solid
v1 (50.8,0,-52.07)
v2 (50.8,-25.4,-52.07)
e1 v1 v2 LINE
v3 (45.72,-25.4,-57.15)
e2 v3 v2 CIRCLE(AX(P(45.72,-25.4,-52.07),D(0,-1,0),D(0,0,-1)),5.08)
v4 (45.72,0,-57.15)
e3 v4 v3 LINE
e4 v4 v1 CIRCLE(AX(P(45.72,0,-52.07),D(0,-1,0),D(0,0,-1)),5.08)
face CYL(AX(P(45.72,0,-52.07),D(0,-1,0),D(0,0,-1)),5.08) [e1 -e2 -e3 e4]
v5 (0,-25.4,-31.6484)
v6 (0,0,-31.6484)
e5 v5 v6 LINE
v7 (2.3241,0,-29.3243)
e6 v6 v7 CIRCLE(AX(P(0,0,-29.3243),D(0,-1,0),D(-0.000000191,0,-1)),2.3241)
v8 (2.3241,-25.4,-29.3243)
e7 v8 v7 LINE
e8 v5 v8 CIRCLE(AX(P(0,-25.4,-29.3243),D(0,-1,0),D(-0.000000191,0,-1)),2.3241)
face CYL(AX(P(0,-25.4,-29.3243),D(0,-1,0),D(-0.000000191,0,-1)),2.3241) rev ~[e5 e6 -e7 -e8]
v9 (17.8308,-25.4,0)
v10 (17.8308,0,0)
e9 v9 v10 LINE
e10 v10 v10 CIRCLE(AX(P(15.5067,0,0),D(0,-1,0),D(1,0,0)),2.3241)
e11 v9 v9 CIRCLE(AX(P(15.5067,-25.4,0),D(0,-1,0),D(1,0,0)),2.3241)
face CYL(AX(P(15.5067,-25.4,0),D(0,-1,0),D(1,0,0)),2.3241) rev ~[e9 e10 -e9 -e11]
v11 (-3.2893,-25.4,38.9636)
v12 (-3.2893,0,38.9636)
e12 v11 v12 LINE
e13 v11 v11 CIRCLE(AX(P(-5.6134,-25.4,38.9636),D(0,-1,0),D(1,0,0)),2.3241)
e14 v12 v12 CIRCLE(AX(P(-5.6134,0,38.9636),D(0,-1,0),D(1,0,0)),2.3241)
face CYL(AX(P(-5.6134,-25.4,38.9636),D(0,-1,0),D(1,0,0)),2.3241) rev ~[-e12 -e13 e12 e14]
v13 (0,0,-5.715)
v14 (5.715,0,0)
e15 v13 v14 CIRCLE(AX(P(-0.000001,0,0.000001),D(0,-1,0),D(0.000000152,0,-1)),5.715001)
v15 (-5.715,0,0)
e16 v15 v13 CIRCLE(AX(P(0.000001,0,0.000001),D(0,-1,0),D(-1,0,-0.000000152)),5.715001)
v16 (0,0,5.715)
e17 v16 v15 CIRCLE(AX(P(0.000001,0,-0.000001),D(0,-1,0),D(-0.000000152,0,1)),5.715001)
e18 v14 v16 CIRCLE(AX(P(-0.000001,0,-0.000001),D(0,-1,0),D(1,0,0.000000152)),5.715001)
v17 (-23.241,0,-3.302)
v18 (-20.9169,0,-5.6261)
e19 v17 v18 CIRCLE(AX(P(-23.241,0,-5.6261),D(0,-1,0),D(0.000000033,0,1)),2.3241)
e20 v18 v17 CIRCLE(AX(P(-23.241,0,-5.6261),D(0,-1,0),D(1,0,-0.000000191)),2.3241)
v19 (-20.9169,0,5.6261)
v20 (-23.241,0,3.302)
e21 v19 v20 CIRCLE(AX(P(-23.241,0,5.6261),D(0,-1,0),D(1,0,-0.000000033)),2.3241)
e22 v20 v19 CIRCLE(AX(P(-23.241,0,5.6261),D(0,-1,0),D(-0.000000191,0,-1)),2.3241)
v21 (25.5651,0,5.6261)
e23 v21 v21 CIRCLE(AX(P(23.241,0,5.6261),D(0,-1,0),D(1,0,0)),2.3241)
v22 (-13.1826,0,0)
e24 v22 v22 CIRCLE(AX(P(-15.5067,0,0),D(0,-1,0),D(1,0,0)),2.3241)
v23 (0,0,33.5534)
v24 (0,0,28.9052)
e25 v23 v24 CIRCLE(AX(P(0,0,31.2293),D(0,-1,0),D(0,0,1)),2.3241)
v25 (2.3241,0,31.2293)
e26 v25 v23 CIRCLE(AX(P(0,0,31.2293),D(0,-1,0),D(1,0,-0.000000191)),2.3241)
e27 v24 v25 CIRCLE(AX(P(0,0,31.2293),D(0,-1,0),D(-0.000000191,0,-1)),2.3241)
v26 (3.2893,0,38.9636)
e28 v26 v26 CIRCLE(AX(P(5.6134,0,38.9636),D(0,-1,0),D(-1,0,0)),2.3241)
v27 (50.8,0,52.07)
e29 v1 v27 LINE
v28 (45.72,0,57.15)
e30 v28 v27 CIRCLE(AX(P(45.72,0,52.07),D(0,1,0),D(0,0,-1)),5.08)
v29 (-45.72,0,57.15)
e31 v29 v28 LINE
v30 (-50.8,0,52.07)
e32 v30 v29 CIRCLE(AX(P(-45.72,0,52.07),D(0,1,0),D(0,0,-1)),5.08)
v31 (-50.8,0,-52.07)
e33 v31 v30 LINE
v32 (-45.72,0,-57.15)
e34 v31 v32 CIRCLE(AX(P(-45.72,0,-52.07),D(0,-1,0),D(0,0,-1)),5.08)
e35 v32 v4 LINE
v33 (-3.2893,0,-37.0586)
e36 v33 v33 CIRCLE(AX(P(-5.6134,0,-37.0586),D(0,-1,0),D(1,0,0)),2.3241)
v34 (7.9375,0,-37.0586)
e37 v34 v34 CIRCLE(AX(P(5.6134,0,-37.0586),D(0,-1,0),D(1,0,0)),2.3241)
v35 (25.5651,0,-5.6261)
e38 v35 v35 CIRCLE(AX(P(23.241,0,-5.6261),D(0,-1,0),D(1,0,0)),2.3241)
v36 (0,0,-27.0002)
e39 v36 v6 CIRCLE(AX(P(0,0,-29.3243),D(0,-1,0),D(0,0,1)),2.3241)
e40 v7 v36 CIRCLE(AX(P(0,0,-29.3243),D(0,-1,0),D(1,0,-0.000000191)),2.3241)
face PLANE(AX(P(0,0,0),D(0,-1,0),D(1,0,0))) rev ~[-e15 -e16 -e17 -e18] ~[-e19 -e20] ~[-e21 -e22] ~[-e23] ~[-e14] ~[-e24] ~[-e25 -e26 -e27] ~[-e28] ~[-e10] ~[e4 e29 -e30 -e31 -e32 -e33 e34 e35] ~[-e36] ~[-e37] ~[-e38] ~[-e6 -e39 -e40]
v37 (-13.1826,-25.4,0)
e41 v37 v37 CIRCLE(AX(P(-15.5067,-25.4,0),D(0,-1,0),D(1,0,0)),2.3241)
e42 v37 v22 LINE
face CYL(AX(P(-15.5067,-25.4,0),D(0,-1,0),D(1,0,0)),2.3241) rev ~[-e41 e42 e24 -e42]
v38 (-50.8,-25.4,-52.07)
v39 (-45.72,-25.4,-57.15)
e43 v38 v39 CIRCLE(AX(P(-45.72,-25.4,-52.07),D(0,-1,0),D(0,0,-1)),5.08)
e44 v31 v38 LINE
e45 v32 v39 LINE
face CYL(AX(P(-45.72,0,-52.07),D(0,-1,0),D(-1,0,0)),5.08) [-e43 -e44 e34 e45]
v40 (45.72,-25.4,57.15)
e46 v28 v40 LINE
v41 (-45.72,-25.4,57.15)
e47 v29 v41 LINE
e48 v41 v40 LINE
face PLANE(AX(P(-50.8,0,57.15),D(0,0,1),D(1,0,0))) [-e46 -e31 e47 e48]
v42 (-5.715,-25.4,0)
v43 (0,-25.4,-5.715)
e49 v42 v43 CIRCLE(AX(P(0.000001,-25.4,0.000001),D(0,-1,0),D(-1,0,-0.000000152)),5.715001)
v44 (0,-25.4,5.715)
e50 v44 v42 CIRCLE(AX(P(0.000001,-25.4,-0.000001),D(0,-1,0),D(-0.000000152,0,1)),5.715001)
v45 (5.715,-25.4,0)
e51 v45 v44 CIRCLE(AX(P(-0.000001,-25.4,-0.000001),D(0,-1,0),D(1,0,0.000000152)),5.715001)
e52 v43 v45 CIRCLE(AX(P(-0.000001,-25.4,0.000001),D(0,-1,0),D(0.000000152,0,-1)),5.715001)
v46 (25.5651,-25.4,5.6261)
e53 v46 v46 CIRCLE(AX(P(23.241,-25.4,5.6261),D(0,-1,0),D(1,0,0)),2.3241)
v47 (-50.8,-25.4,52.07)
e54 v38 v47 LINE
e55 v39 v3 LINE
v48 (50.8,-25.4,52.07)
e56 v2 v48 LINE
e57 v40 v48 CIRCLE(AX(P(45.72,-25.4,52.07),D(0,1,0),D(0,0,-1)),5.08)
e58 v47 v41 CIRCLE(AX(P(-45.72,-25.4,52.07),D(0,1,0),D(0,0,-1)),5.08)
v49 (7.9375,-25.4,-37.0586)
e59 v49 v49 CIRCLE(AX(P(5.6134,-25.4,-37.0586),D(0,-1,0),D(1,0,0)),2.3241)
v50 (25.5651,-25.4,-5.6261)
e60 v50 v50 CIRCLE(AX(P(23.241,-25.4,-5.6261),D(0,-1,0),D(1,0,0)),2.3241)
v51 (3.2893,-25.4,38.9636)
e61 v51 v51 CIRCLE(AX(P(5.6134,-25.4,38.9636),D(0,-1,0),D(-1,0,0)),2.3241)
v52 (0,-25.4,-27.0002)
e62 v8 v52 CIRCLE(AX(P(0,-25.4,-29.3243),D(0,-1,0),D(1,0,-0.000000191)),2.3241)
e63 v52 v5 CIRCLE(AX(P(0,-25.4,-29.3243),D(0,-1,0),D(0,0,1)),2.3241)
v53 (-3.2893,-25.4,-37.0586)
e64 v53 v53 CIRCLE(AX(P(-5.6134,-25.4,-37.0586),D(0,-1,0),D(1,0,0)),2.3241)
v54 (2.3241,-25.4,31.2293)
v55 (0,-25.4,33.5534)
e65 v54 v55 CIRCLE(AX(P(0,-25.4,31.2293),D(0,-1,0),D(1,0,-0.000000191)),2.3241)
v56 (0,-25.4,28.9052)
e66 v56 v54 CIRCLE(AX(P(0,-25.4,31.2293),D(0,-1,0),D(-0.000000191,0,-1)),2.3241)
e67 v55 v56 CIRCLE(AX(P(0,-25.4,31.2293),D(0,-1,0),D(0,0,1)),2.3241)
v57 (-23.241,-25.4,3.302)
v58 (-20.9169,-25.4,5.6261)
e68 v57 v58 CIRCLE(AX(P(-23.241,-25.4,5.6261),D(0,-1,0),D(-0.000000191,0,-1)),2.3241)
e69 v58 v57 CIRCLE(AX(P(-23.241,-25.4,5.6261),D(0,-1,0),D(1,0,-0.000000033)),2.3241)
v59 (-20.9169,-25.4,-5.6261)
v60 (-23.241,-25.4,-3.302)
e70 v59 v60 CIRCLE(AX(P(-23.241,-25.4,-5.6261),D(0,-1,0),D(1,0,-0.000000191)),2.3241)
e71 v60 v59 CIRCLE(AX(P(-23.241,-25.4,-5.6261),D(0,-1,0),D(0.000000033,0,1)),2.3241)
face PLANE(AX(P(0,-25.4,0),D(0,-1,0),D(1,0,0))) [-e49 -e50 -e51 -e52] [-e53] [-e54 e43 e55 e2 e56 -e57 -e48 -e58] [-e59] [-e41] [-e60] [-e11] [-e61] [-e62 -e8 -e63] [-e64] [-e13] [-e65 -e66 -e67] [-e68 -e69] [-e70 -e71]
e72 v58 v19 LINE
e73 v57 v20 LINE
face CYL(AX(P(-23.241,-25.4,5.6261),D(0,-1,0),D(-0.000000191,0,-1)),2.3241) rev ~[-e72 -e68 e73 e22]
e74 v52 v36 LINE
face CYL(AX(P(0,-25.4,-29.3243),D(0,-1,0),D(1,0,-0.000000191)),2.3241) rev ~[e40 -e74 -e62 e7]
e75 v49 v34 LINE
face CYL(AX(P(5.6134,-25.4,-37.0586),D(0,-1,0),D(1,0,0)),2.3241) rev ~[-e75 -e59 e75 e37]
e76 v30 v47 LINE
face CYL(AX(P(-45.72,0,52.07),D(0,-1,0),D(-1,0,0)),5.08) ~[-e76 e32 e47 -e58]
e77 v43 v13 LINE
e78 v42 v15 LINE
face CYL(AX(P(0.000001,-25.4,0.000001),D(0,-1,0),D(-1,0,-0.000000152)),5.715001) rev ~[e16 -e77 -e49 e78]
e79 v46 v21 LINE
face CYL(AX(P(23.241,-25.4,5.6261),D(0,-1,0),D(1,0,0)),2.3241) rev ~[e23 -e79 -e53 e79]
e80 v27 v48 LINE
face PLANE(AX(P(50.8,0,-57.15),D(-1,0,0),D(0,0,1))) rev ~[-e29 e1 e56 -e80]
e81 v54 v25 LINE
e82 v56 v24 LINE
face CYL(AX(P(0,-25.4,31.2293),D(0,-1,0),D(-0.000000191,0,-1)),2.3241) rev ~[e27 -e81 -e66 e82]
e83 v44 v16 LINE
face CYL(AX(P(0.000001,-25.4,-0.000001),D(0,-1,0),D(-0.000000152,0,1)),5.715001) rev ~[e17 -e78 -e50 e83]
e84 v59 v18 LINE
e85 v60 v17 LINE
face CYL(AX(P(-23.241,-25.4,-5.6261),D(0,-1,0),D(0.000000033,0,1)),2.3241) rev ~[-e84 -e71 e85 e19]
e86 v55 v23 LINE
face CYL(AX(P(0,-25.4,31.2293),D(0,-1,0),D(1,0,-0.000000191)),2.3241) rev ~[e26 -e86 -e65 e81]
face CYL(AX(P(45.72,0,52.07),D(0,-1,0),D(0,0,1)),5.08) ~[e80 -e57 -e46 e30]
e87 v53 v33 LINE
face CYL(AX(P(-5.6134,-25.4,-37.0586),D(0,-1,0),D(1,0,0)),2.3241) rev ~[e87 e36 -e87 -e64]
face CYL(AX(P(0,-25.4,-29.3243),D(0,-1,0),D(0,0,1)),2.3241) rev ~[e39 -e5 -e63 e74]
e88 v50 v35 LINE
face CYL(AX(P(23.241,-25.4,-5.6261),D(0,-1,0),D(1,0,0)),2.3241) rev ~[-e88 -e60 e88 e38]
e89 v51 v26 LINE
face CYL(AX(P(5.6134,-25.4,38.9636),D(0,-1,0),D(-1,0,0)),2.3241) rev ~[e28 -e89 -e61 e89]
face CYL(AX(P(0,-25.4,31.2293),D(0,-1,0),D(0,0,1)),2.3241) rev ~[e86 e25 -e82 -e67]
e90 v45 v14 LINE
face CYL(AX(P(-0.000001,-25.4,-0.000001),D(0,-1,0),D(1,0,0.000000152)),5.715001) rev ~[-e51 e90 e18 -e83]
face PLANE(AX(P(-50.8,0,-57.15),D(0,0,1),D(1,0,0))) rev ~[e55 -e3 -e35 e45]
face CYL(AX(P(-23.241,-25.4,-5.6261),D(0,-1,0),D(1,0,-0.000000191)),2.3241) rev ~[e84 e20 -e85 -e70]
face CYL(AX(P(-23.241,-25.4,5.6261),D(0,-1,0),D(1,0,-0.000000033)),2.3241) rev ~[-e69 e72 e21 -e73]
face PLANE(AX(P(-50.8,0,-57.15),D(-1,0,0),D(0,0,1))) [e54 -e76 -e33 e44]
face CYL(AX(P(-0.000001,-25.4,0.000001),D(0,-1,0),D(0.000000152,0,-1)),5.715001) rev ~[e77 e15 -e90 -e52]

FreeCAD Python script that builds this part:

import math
import FreeCAD as App
import Part
import Sketcher

V = App.Vector
Q = App.Units.Quantity


def edges_at(feature, points):
    """Names of the edges that pass closest to the given points."""
    edges = feature.Shape.Edges
    near = lambda p: min(range(len(edges)), key=lambda i: edges[i].distToShape(Part.Vertex(*p))[0])
    return sorted({f"Edge{near(p) + 1}" for p in points})

doc = App.newDocument("Part")
params = doc.addObject("Spreadsheet::Sheet", "Params")
for row, (alias, value) in enumerate([
    ("sketch1_width", "4 in"),
    ("sketch1_height", "4.5 in"),
    ("pad1_length", "1 in"),
    ("sketch2_diameter", "0.183 in"),
    ("sketch2_radius", "0.225 in"),
    ("fillet_radius", "0.2 in"),
], start=1):
    params.set(f"A{row}", alias)
    params.set(f"B{row}", "=" + value)
    params.setAlias(f"B{row}", alias)

body = doc.addObject("PartDesign::Body", "Body")

# Sketch on XZ plane
sketch1 = body.newObject("Sketcher::SketchObject", "Sketch")
sketch1.AttachmentSupport = (doc.getObject("XZ_Plane"), [""])
sketch1.MapMode = "FlatFace"
sketch1.addGeometry(Part.LineSegment(V(-51, 57, 0), V(-51, -57, 0)), False)
sketch1.addGeometry(Part.LineSegment(V(-51, -57, 0), V(51, -57, 0)), False)
sketch1.addGeometry(Part.LineSegment(V(51, -57, 0), V(51, 57, 0)), False)
sketch1.addGeometry(Part.LineSegment(V(51, 57, 0), V(-51, 57, 0)), False)
sketch1.addConstraint(Sketcher.Constraint("Coincident", 0, 2, 1, 1))
sketch1.addConstraint(Sketcher.Constraint("Coincident", 1, 2, 2, 1))
sketch1.addConstraint(Sketcher.Constraint("Coincident", 2, 2, 3, 1))
sketch1.addConstraint(Sketcher.Constraint("Coincident", 3, 2, 0, 1))
sketch1.addConstraint(Sketcher.Constraint("Vertical", 0))
sketch1.addConstraint(Sketcher.Constraint("Horizontal", 1))
sketch1.addConstraint(Sketcher.Constraint("Vertical", 2))
sketch1.addConstraint(Sketcher.Constraint("Horizontal", 3))
sketch1.addConstraint(Sketcher.Constraint("Symmetric", 0, 2, 2, 2, -1, 1))
sketch1.addConstraint(Sketcher.Constraint("DistanceX", 1, 1, 1, 2, Q("4 in")))
sketch1.addConstraint(Sketcher.Constraint("DistanceY", 0, 2, 0, 1, Q("4.5 in")))
sketch1.setExpression("Constraints[9]", "Params.sketch1_width")
sketch1.setExpression("Constraints[10]", "Params.sketch1_height")
pad1 = body.newObject("PartDesign::Pad", "Pad")
pad1.Profile = sketch1
pad1.setExpression("Length", "Params.pad1_length")

# Sketch on XZ plane
sketch2 = body.newObject("Sketcher::SketchObject", "Sketch001")
sketch2.AttachmentSupport = (doc.getObject("XZ_Plane"), [""])
sketch2.MapMode = "FlatFace"
sketch2.AttachmentOffset = App.Placement(V(0, 0, 1 * 25.4), App.Rotation())
sketch2.addGeometry(Part.ArcOfCircle(Part.Circle(V(0, 0, 0), V(0, 0, 1), 5.7), math.radians(-90), math.radians(0)), False)
sketch2.addGeometry(Part.ArcOfCircle(Part.Circle(V(0, 0, 0), V(0, 0, 1), 5.7), math.radians(0), math.radians(90)), False)
sketch2.addGeometry(Part.ArcOfCircle(Part.Circle(V(0, 0, 0), V(0, 0, 1), 5.7), math.radians(90), math.radians(180)), False)
sketch2.addGeometry(Part.ArcOfCircle(Part.Circle(V(0, 0, 0), V(0, 0, 1), 5.7), math.radians(-180), math.radians(-90)), False)
sketch2.addGeometry(Part.ArcOfCircle(Part.Circle(V(0, -29.3, 0), V(0, 0, 1), 2.3), math.radians(0), math.radians(90)), False)
sketch2.addGeometry(Part.ArcOfCircle(Part.Circle(V(0, -29.3, 0), V(0, 0, 1), 2.3), math.radians(90), math.radians(270)), False)
sketch2.addGeometry(Part.ArcOfCircle(Part.Circle(V(0, -29.3, 0), V(0, 0, 1), 2.3), math.radians(-90), math.radians(0)), False)
sketch2.addGeometry(Part.ArcOfCircle(Part.Circle(V(-23.2, -5.6, 0), V(0, 0, 1), 2.3), math.radians(0), math.radians(90)), False)
sketch2.addGeometry(Part.ArcOfCircle(Part.Circle(V(-23.2, -5.6, 0), V(0, 0, 1), 2.3), math.radians(90), math.radians(360)), False)
sketch2.addGeometry(Part.ArcOfCircle(Part.Circle(V(-23.2, 5.6, 0), V(0, 0, 1), 2.3), math.radians(0), math.radians(270)), False)
sketch2.addGeometry(Part.ArcOfCircle(Part.Circle(V(-23.2, 5.6, 0), V(0, 0, 1), 2.3), math.radians(-90), math.radians(0)), False)
sketch2.addGeometry(Part.Circle(V(-15.5, 0, 0), V(0, 0, 1), 2.3), False)
sketch2.addGeometry(Part.Circle(V(-5.6, 39, 0), V(0, 0, 1), 2.3), False)
sketch2.addGeometry(Part.Circle(V(5.6, 39, 0), V(0, 0, 1), 2.3), False)
sketch2.addGeometry(Part.ArcOfCircle(Part.Circle(V(0, 31.2, 0), V(0, 0, 1), 2.3), math.radians(90), math.radians(270)), False)
sketch2.addGeometry(Part.ArcOfCircle(Part.Circle(V(0, 31.2, 0), V(0, 0, 1), 2.3), math.radians(-90), math.radians(0)), False)
sketch2.addGeometry(Part.ArcOfCircle(Part.Circle(V(0, 31.2, 0), V(0, 0, 1), 2.3), math.radians(0), math.radians(90)), False)
sketch2.addGeometry(Part.Circle(V(-5.6, -37.1, 0), V(0, 0, 1), 2.3), False)
sketch2.addGeometry(Part.Circle(V(5.6, -37.1, 0), V(0, 0, 1), 2.3), False)
sketch2.addGeometry(Part.Circle(V(15.5, 0, 0), V(0, 0, 1), 2.3), False)
sketch2.addGeometry(Part.Circle(V(23.2, -5.6, 0), V(0, 0, 1), 2.3), False)
sketch2.addGeometry(Part.Circle(V(23.2, 5.6, 0), V(0, 0, 1), 2.3), False)
sketch2.addConstraint(Sketcher.Constraint("Tangent", 0, 2, 1, 1))
sketch2.addConstraint(Sketcher.Constraint("Tangent", 1, 2, 2, 1))
sketch2.addConstraint(Sketcher.Constraint("Tangent", 2, 2, 3, 1))
sketch2.addConstraint(Sketcher.Constraint("Tangent", 3, 2, 0, 1))
sketch2.addConstraint(Sketcher.Constraint("Tangent", 4, 2, 5, 1))
sketch2.addConstraint(Sketcher.Constraint("Tangent", 5, 2, 6, 1))
sketch2.addConstraint(Sketcher.Constraint("Tangent", 6, 2, 4, 1))
sketch2.addConstraint(Sketcher.Constraint("Tangent", 7, 1, 8, 2))
sketch2.addConstraint(Sketcher.Constraint("Coincident", 8, 1, 7, 2))
sketch2.addConstraint(Sketcher.Constraint("Tangent", 9, 1, 10, 2))
sketch2.addConstraint(Sketcher.Constraint("Coincident", 10, 1, 9, 2))
sketch2.addConstraint(Sketcher.Constraint("Tangent", 14, 2, 15, 1))
sketch2.addConstraint(Sketcher.Constraint("Tangent", 15, 2, 16, 1))
sketch2.addConstraint(Sketcher.Constraint("Tangent", 16, 2, 14, 1))
sketch2.addConstraint(Sketcher.Constraint("Coincident", 0, 3, -1, 1))
sketch2.addConstraint(Sketcher.Constraint("Equal", 0, 1))
sketch2.addConstraint(Sketcher.Constraint("Equal", 6, 7))
sketch2.addConstraint(Sketcher.Constraint("Equal", 8, 9))
sketch2.addConstraint(Sketcher.Constraint("Equal", 10, 11))
sketch2.addConstraint(Sketcher.Constraint("Equal", 11, 12))
sketch2.addConstraint(Sketcher.Constraint("Equal", 12, 13))
sketch2.addConstraint(Sketcher.Constraint("Equal", 13, 14))
sketch2.addConstraint(Sketcher.Constraint("Equal", 16, 17))
sketch2.addConstraint(Sketcher.Constraint("Equal", 17, 18))
sketch2.addConstraint(Sketcher.Constraint("Equal", 18, 19))
sketch2.addConstraint(Sketcher.Constraint("Equal", 19, 20))
sketch2.addConstraint(Sketcher.Constraint("Equal", 20, 21))
sketch2.addConstraint(Sketcher.Constraint("Symmetric", 11, 3, 19, 3, -1, 1))
sketch2.addConstraint(Sketcher.Constraint("Symmetric", 9, 3, 20, 3, -1, 1))
sketch2.addConstraint(Sketcher.Constraint("Symmetric", 7, 3, 21, 3, -1, 1))
sketch2.addConstraint(Sketcher.Constraint("Symmetric", 12, 3, 13, 3, -2))
sketch2.addConstraint(Sketcher.Constraint("Symmetric", 17, 3, 18, 3, -2))
sketch2.addConstraint(Sketcher.Constraint("Symmetric", 7, 3, 20, 3, -2))
sketch2.addConstraint(Sketcher.Constraint("PointOnObject", 4, 3, -2))
sketch2.addConstraint(Sketcher.Constraint("PointOnObject", 11, 3, -1))
sketch2.addConstraint(Sketcher.Constraint("PointOnObject", 14, 3, -2))
sketch2.addConstraint(Sketcher.Constraint("PointOnObject", 0, 2, -1))
sketch2.addConstraint(Sketcher.Constraint("PointOnObject", 1, 2, -2))
sketch2.addConstraint(Sketcher.Constraint("PointOnObject", 2, 2, -1))
sketch2.addConstraint(Sketcher.Constraint("PointOnObject", 3, 2, -2))
sketch2.addConstraint(Sketcher.Constraint("PointOnObject", 4, 2, -2))
sketch2.addConstraint(Sketcher.Constraint("PointOnObject", 5, 2, -2))
sketch2.addConstraint(Sketcher.Constraint("PointOnObject", 14, 2, -2))
sketch2.addConstraint(Sketcher.Constraint("PointOnObject", 16, 2, -2))
sketch2.addConstraint(Sketcher.Constraint("Horizontal", 5, 3, 6, 2))
sketch2.addConstraint(Sketcher.Constraint("Horizontal", 20, 3, 7, 1))
sketch2.addConstraint(Sketcher.Constraint("Horizontal", 21, 3, 9, 1))
sketch2.addConstraint(Sketcher.Constraint("Horizontal", 16, 3, 15, 2))
sketch2.addConstraint(Sketcher.Constraint("Vertical", 12, 3, 17, 3))
sketch2.addConstraint(Sketcher.Constraint("Vertical", 10, 3, 8, 1))
sketch2.addConstraint(Sketcher.Constraint("Vertical", 8, 1, 10, 1))
sketch2.addConstraint(Sketcher.Constraint("Diameter", 11, Q("0.183 in")))
sketch2.addConstraint(Sketcher.Constraint("Radius", 0, Q("0.225 in")))
sketch2.addConstraint(Sketcher.Constraint("DistanceY", 8, 1, -1, 1, Q("0.13 in")))
sketch2.addConstraint(Sketcher.Constraint("DistanceX", 7, 3, -1, 1, Q("0.915 in")))
sketch2.addConstraint(Sketcher.Constraint("DistanceX", 12, 3, -1, 1, Q("0.221 in")))
sketch2.addConstraint(Sketcher.Constraint("DistanceY", -1, 1, 12, 3, Q("1.534 in")))
sketch2.addConstraint(Sketcher.Constraint("DistanceY", 17, 3, -1, 1, Q("1.459 in")))
sketch2.addConstraint(Sketcher.Constraint("DistanceY", 4, 2, -1, 1, Q("1.063 in")))
sketch2.addConstraint(Sketcher.Constraint("DistanceY", -1, 1, 14, 2, Q("1.138 in")))
sketch2.addConstraint(Sketcher.Constraint("DistanceX", 11, 3, 19, 3, Q("1.221 in")))
sketch2.setExpression("Constraints[51]", "Params.sketch2_diameter")
sketch2.setExpression("Constraints[52]", "Params.sketch2_radius")
pocket1 = body.newObject("PartDesign::Pocket", "Pocket")
pocket1.Profile = sketch2
pocket1.Type = "ThroughAll"
doc.recompute()

fillet = body.newObject("PartDesign::Fillet", "Fillet")
fillet.Base = (pocket1, edges_at(pocket1, [
    (-50.8, -12.7, -57.15),
    (50.8, -12.7, -57.15),
    (-50.8, -12.7, 57.15),
    (50.8, -12.7, 57.15),
]))
fillet.setExpression("Radius", "Params.fillet_radius")

doc.recompute()
